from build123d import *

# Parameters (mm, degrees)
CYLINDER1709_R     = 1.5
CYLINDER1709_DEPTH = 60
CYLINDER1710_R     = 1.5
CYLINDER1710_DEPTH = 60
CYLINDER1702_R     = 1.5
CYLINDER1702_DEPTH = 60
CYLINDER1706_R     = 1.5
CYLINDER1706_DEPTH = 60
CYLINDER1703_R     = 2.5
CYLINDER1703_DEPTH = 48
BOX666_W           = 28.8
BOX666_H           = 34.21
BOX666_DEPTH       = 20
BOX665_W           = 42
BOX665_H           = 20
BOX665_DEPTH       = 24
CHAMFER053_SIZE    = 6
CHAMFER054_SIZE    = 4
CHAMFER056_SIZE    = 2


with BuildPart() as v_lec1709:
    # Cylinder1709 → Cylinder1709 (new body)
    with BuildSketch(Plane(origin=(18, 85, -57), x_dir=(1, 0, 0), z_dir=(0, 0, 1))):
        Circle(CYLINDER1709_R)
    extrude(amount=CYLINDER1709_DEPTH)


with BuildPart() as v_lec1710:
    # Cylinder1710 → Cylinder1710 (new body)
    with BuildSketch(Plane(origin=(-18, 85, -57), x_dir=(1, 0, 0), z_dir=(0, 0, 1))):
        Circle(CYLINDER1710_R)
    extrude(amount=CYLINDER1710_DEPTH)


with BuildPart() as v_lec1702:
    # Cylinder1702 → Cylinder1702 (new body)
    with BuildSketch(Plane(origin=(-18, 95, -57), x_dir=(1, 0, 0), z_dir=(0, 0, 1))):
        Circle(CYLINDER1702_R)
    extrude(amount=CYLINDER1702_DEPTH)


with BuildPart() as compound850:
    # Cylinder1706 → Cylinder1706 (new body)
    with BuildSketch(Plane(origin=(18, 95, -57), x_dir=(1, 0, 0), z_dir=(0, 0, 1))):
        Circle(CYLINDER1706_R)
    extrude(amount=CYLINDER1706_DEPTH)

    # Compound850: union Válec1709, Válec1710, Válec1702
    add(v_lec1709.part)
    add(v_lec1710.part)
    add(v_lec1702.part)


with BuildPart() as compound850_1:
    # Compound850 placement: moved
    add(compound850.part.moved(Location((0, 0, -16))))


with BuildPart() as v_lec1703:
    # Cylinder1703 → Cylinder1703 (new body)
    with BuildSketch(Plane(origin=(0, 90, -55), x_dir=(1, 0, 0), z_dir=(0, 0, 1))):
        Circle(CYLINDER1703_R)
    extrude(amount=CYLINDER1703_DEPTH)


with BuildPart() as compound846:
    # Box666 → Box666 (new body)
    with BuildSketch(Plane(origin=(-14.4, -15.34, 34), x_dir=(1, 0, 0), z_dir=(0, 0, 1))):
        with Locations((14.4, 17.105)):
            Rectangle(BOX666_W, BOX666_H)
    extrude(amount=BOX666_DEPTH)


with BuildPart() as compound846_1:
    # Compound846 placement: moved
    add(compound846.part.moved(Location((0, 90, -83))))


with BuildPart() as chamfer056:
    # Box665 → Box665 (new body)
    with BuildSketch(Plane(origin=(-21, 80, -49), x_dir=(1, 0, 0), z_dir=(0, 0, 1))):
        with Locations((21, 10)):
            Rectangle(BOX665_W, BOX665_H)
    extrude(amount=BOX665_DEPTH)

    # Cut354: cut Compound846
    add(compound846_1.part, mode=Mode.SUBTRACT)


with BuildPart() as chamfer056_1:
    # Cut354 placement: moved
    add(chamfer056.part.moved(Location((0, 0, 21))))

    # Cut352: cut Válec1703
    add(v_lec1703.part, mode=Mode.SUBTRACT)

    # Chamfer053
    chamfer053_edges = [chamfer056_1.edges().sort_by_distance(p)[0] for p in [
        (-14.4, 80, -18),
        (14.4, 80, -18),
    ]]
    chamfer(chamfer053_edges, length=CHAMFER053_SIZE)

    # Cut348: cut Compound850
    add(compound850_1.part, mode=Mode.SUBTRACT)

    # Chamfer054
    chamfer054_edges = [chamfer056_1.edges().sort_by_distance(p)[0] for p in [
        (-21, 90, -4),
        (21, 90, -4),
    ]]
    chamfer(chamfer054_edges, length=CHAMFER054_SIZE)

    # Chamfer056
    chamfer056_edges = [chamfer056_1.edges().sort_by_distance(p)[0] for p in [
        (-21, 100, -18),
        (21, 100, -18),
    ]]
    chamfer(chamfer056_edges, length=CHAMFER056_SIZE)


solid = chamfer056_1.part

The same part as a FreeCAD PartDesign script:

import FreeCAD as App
import Part
import Sketcher

V = App.Vector
Q = App.Units.Quantity


def edges_at(feature, points):
    """Names of the edges that pass closest to the given points."""
    edges = feature.Shape.Edges
    near = lambda p: min(range(len(edges)), key=lambda i: edges[i].distToShape(Part.Vertex(*p))[0])
    return sorted({f"Edge{near(p) + 1}" for p in points})


def add_polygon(sketch, points):
    """Adds a closed chain of lines whose ends are joined by coincident constraints."""
    first, n = sketch.GeometryCount, len(points)
    for a, b in zip(points, points[1:] + points[:1]):
        sketch.addGeometry(Part.LineSegment(App.Vector(*a, 0), App.Vector(*b, 0)), False)
    for i in range(n):
        sketch.addConstraint(Sketcher.Constraint("Coincident", first + i, 2, first + (i + 1) % n, 1))

doc = App.newDocument("Part")
body = doc.addObject("PartDesign::Body", "Body")

# Sketch on XY plane
sketch1 = body.newObject("Sketcher::SketchObject", "Sketch")
sketch1.AttachmentSupport = (doc.getObject("XY_Plane"), [""])
sketch1.MapMode = "FlatFace"
sketch1.AttachmentOffset = App.Placement(V(0, 0, -57), App.Rotation())
sketch1.addGeometry(Part.Circle(V(18, 85, 0), V(0, 0, 1), 1.5), False)
sketch1.addConstraint(Sketcher.Constraint("Diameter", 0, Q("3 mm")))
sketch1.addConstraint(Sketcher.Constraint("DistanceX", -1, 1, 0, 3, Q("18 mm")))
sketch1.addConstraint(Sketcher.Constraint("DistanceY", -1, 1, 0, 3, Q("85 mm")))
pad1 = body.newObject("PartDesign::Pad", "Pad")
pad1.Profile = sketch1
pad1.Length = 60
body2 = doc.addObject("PartDesign::Body", "Body001")

# Sketch on XY plane
sketch2 = body2.newObject("Sketcher::SketchObject", "Sketch001")
sketch2.AttachmentSupport = (doc.getObject("XY_Plane001"), [""])
sketch2.MapMode = "FlatFace"
sketch2.AttachmentOffset = App.Placement(V(0, 0, -57), App.Rotation())
sketch2.addGeometry(Part.Circle(V(-18, 85, 0), V(0, 0, 1), 1.5), False)
sketch2.addConstraint(Sketcher.Constraint("Diameter", 0, Q("3 mm")))
sketch2.addConstraint(Sketcher.Constraint("DistanceX", 0, 3, -1, 1, Q("18 mm")))
sketch2.addConstraint(Sketcher.Constraint("DistanceY", -1, 1, 0, 3, Q("85 mm")))
pad2 = body2.newObject("PartDesign::Pad", "Pad001")
pad2.Profile = sketch2
pad2.Length = 60
body3 = doc.addObject("PartDesign::Body", "Body002")

# Sketch on XY plane
sketch3 = body3.newObject("Sketcher::SketchObject", "Sketch002")
sketch3.AttachmentSupport = (doc.getObject("XY_Plane002"), [""])
sketch3.MapMode = "FlatFace"
sketch3.AttachmentOffset = App.Placement(V(0, 0, -57), App.Rotation())
sketch3.addGeometry(Part.Circle(V(-18, 95, 0), V(0, 0, 1), 1.5), False)
sketch3.addConstraint(Sketcher.Constraint("Diameter", 0, Q("3 mm")))
sketch3.addConstraint(Sketcher.Constraint("DistanceX", 0, 3, -1, 1, Q("18 mm")))
sketch3.addConstraint(Sketcher.Constraint("DistanceY", -1, 1, 0, 3, Q("95 mm")))
pad3 = body3.newObject("PartDesign::Pad", "Pad002")
pad3.Profile = sketch3
pad3.Length = 60
body4 = doc.addObject("PartDesign::Body", "Body003")
body4.AllowCompound = True

# Sketch on XY plane
sketch4 = body4.newObject("Sketcher::SketchObject", "Sketch003")
sketch4.AttachmentSupport = (doc.getObject("XY_Plane003"), [""])
sketch4.MapMode = "FlatFace"
sketch4.AttachmentOffset = App.Placement(V(0, 0, -57), App.Rotation())
sketch4.addGeometry(Part.Circle(V(18, 95, 0), V(0, 0, 1), 1.5), False)
sketch4.addConstraint(Sketcher.Constraint("Diameter", 0, Q("3 mm")))
sketch4.addConstraint(Sketcher.Constraint("DistanceX", -1, 1, 0, 3, Q("18 mm")))
sketch4.addConstraint(Sketcher.Constraint("DistanceY", -1, 1, 0, 3, Q("95 mm")))
pad4 = body4.newObject("PartDesign::Pad", "Pad003")
pad4.Profile = sketch4
pad4.Length = 60
doc.recompute()

boolean = body4.newObject("PartDesign::Boolean", "Boolean")
boolean.Type = "Fuse"
boolean.addObjects([body])
doc.recompute()

boolean2 = body4.newObject("PartDesign::Boolean", "Boolean001")
boolean2.Type = "Fuse"
boolean2.addObjects([body2])
doc.recompute()

boolean3 = body4.newObject("PartDesign::Boolean", "Boolean002")
boolean3.Type = "Fuse"
boolean3.addObjects([body3])
body5 = doc.addObject("PartDesign::Body", "Body004")
body5.AllowCompound = True
doc.recompute()

body4.Placement = App.Placement(V(0, 0, -16), App.Rotation(V(0, 0, 1), 0))
boolean4 = body5.newObject("PartDesign::Boolean", "Boolean003")
boolean4.Type = "Fuse"
boolean4.addObjects([body4])
body6 = doc.addObject("PartDesign::Body", "Body005")

# Sketch on XY plane
sketch5 = body6.newObject("Sketcher::SketchObject", "Sketch004")
sketch5.AttachmentSupport = (doc.getObject("XY_Plane005"), [""])
sketch5.MapMode = "FlatFace"
sketch5.AttachmentOffset = App.Placement(V(0, 0, -55), App.Rotation())
sketch5.addGeometry(Part.Circle(V(0, 90, 0), V(0, 0, 1), 2.5), False)
sketch5.addConstraint(Sketcher.Constraint("PointOnObject", 0, 3, -2))
sketch5.addConstraint(Sketcher.Constraint("Diameter", 0, Q("5 mm")))
sketch5.addConstraint(Sketcher.Constraint("DistanceY", -1, 1, 0, 3, Q("90 mm")))
pad5 = body6.newObject("PartDesign::Pad", "Pad004")
pad5.Profile = sketch5
pad5.Length = 48
body7 = doc.addObject("PartDesign::Body", "Body006")

# Sketch on XY plane
sketch6 = body7.newObject("Sketcher::SketchObject", "Sketch005")
sketch6.AttachmentSupport = (doc.getObject("XY_Plane006"), [""])
sketch6.MapMode = "FlatFace"
sketch6.AttachmentOffset = App.Placement(V(0, 0, 34), App.Rotation())
add_polygon(sketch6, [(-14, 19), (-14, -15), (14, -15), (14, 19)])  # lines 0-3
sketch6.addConstraint(Sketcher.Constraint("Vertical", 0))
sketch6.addConstraint(Sketcher.Constraint("Horizontal", 1))
sketch6.addConstraint(Sketcher.Constraint("Vertical", 2))
sketch6.addConstraint(Sketcher.Constraint("Horizontal", 3))
sketch6.addConstraint(Sketcher.Constraint("DistanceX", 1, 1, 1, 2, Q("28.8 mm")))
sketch6.addConstraint(Sketcher.Constraint("DistanceY", 0, 2, 0, 1, Q("34.21 mm")))
sketch6.addConstraint(Sketcher.Constraint("DistanceX", 0, 2, -1, 1, Q("14.4 mm")))
sketch6.addConstraint(Sketcher.Constraint("DistanceY", 0, 2, -1, 1, Q("15.34 mm")))
pad6 = body7.newObject("PartDesign::Pad", "Pad005")
pad6.Profile = sketch6
pad6.Length = 20
body8 = doc.addObject("PartDesign::Body", "Body007")
doc.recompute()

body7.Placement = App.Placement(V(0, 90, -83), App.Rotation(V(0, 0, 1), 0))
boolean5 = body8.newObject("PartDesign::Boolean", "Boolean004")
boolean5.Type = "Fuse"
boolean5.addObjects([body7])
body9 = doc.addObject("PartDesign::Body", "Body008")

# Sketch on XY plane
sketch7 = body9.newObject("Sketcher::SketchObject", "Sketch006")
sketch7.AttachmentSupport = (doc.getObject("XY_Plane008"), [""])
sketch7.MapMode = "FlatFace"
sketch7.AttachmentOffset = App.Placement(V(0, 0, -49), App.Rotation())
add_polygon(sketch7, [(-21, 100), (-21, 80), (21, 80), (21, 100)])  # lines 0-3
sketch7.addConstraint(Sketcher.Constraint("Vertical", 0))
sketch7.addConstraint(Sketcher.Constraint("Horizontal", 1))
sketch7.addConstraint(Sketcher.Constraint("Vertical", 2))
sketch7.addConstraint(Sketcher.Constraint("Horizontal", 3))
sketch7.addConstraint(Sketcher.Constraint("DistanceX", 1, 1, 1, 2, Q("42 mm")))
sketch7.addConstraint(Sketcher.Constraint("DistanceY", 0, 2, 0, 1, Q("20 mm")))
sketch7.addConstraint(Sketcher.Constraint("DistanceX", 0, 2, -1, 1, Q("21 mm")))
sketch7.addConstraint(Sketcher.Constraint("DistanceY", -1, 1, 0, 2, Q("80 mm")))
pad7 = body9.newObject("PartDesign::Pad", "Pad006")
pad7.Profile = sketch7
pad7.Length = 24
doc.recompute()

boolean6 = body9.newObject("PartDesign::Boolean", "Boolean005")
boolean6.Type = "Cut"
boolean6.addObjects([body8])
body10 = doc.addObject("PartDesign::Body", "Body009")
doc.recompute()

body9.Placement = App.Placement(V(0, 0, 21), App.Rotation(V(0, 0, 1), 0))
boolean7 = body10.newObject("PartDesign::Boolean", "Boolean006")
boolean7.Type = "Fuse"
boolean7.addObjects([body9])
doc.recompute()

boolean8 = body10.newObject("PartDesign::Boolean", "Boolean007")
boolean8.Type = "Cut"
boolean8.addObjects([body6])
doc.recompute()

chamfer = body10.newObject("PartDesign::Chamfer", "Chamfer")
chamfer.Base = (boolean8, edges_at(boolean8, [(-14.4, 80, -18), (14.4, 80, -18)]))
chamfer.Size = 6
doc.recompute()

boolean9 = body10.newObject("PartDesign::Boolean", "Boolean008")
boolean9.Type = "Cut"
boolean9.addObjects([body5])
doc.recompute()

chamfer2 = body10.newObject("PartDesign::Chamfer", "Chamfer001")
chamfer2.Base = (boolean9, edges_at(boolean9, [(-21, 90, -4), (21, 90, -4)]))
chamfer2.Size = 4
doc.recompute()

chamfer3 = body10.newObject("PartDesign::Chamfer", "Chamfer002")
chamfer3.Base = (chamfer2, edges_at(chamfer2, [(-21, 100, -18), (21, 100, -18)]))
chamfer3.Size = 2

doc.recompute()
